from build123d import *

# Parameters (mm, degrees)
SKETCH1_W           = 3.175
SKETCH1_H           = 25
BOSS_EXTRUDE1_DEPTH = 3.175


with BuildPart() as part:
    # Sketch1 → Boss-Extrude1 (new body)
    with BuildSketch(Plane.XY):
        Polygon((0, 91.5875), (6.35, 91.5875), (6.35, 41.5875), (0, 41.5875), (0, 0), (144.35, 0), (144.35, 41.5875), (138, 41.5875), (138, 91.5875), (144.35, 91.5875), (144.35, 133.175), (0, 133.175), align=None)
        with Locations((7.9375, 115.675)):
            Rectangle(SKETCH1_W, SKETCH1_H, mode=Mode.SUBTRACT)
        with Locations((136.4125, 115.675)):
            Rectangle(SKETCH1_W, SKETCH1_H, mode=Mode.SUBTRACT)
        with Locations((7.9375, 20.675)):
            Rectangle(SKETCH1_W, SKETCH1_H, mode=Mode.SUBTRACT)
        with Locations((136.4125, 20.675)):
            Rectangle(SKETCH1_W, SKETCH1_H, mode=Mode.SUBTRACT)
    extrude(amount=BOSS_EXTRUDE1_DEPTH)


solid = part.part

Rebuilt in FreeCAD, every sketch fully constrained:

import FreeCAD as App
import Part
import Sketcher
from FreeCAD import Vector

doc = App.newDocument("Part")
body = doc.addObject("PartDesign::Body", "Body")

# Sketch on XY plane
sketch1 = body.newObject("Sketcher::SketchObject", "Sketch")
sketch1.AttachmentSupport = (doc.getObject("XY_Plane"), [""])
sketch1.MapMode = "FlatFace"
sketch1.addGeometry([
    Part.LineSegment(Vector(0, 91.6, 0), Vector(6.3, 91.6, 0)),  # 0
    Part.LineSegment(Vector(6.3, 91.6, 0), Vector(6.3, 41.6, 0)),  # 1
    Part.LineSegment(Vector(6.3, 41.6, 0), Vector(0, 41.6, 0)),  # 2
    Part.LineSegment(Vector(0, 41.6, 0), Vector(0, 0, 0)),  # 3
    Part.LineSegment(Vector(0, 0, 0), Vector(144.3, 0, 0)),  # 4
    Part.LineSegment(Vector(144.3, 0, 0), Vector(144.3, 41.6, 0)),  # 5
    Part.LineSegment(Vector(144.3, 41.6, 0), Vector(138, 41.6, 0)),  # 6
    Part.LineSegment(Vector(138, 41.6, 0), Vector(138, 91.6, 0)),  # 7
    Part.LineSegment(Vector(138, 91.6, 0), Vector(144.3, 91.6, 0)),  # 8
    Part.LineSegment(Vector(144.3, 91.6, 0), Vector(144.3, 133.2, 0)),  # 9
    Part.LineSegment(Vector(144.3, 133.2, 0), Vector(0, 133.2, 0)),  # 10
    Part.LineSegment(Vector(0, 133.2, 0), Vector(0, 91.6, 0)),  # 11
    Part.LineSegment(Vector(9.5, 8.2, 0), Vector(6.3, 8.2, 0)),  # 12
    Part.LineSegment(Vector(6.3, 8.2, 0), Vector(6.3, 33.2, 0)),  # 13
    Part.LineSegment(Vector(6.3, 33.2, 0), Vector(9.5, 33.2, 0)),  # 14
    Part.LineSegment(Vector(9.5, 33.2, 0), Vector(9.5, 8.2, 0)),  # 15
    Part.LineSegment(Vector(138, 8.2, 0), Vector(134.8, 8.2, 0)),  # 16
    Part.LineSegment(Vector(134.8, 8.2, 0), Vector(134.8, 33.2, 0)),  # 17
    Part.LineSegment(Vector(134.8, 33.2, 0), Vector(138, 33.2, 0)),  # 18
    Part.LineSegment(Vector(138, 33.2, 0), Vector(138, 8.2, 0)),  # 19
    Part.LineSegment(Vector(9.5, 103.2, 0), Vector(6.3, 103.2, 0)),  # 20
    Part.LineSegment(Vector(6.3, 103.2, 0), Vector(6.3, 128.2, 0)),  # 21
    Part.LineSegment(Vector(6.3, 128.2, 0), Vector(9.5, 128.2, 0)),  # 22
    Part.LineSegment(Vector(9.5, 128.2, 0), Vector(9.5, 103.2, 0)),  # 23
    Part.LineSegment(Vector(138, 103.2, 0), Vector(134.8, 103.2, 0)),  # 24
    Part.LineSegment(Vector(134.8, 103.2, 0), Vector(134.8, 128.2, 0)),  # 25
    Part.LineSegment(Vector(134.8, 128.2, 0), Vector(138, 128.2, 0)),  # 26
    Part.LineSegment(Vector(138, 128.2, 0), Vector(138, 103.2, 0)),  # 27
], False)
sketch1.addConstraint([
    Sketcher.Constraint("Coincident", 0, 2, 1, 1),
    Sketcher.Constraint("Coincident", 1, 2, 2, 1),
    Sketcher.Constraint("Coincident", 2, 2, 3, 1),
    Sketcher.Constraint("Coincident", 3, 2, 4, 1),
    Sketcher.Constraint("Coincident", 4, 2, 5, 1),
    Sketcher.Constraint("Coincident", 5, 2, 6, 1),
    Sketcher.Constraint("Coincident", 6, 2, 7, 1),
    Sketcher.Constraint("Coincident", 7, 2, 8, 1),
    Sketcher.Constraint("Coincident", 8, 2, 9, 1),
    Sketcher.Constraint("Coincident", 9, 2, 10, 1),
    Sketcher.Constraint("Coincident", 10, 2, 11, 1),
    Sketcher.Constraint("Coincident", 11, 2, 0, 1),
    Sketcher.Constraint("Coincident", 12, 2, 13, 1),
    Sketcher.Constraint("Coincident", 13, 2, 14, 1),
    Sketcher.Constraint("Coincident", 14, 2, 15, 1),
    Sketcher.Constraint("Coincident", 15, 2, 12, 1),
    Sketcher.Constraint("Coincident", 16, 2, 17, 1),
    Sketcher.Constraint("Coincident", 17, 2, 18, 1),
    Sketcher.Constraint("Coincident", 18, 2, 19, 1),
    Sketcher.Constraint("Coincident", 19, 2, 16, 1),
    Sketcher.Constraint("Coincident", 20, 2, 21, 1),
    Sketcher.Constraint("Coincident", 21, 2, 22, 1),
    Sketcher.Constraint("Coincident", 22, 2, 23, 1),
    Sketcher.Constraint("Coincident", 23, 2, 20, 1),
    Sketcher.Constraint("Coincident", 24, 2, 25, 1),
    Sketcher.Constraint("Coincident", 25, 2, 26, 1),
    Sketcher.Constraint("Coincident", 26, 2, 27, 1),
    Sketcher.Constraint("Coincident", 27, 2, 24, 1),
    Sketcher.Constraint("Horizontal", 0),
    Sketcher.Constraint("Vertical", 1),
    Sketcher.Constraint("Horizontal", 2),
    Sketcher.Constraint("Vertical", 3),
    Sketcher.Constraint("Horizontal", 4),
    Sketcher.Constraint("Vertical", 5),
    Sketcher.Constraint("Horizontal", 6),
    Sketcher.Constraint("Vertical", 7),
    Sketcher.Constraint("Horizontal", 8),
    Sketcher.Constraint("Vertical", 9),
    Sketcher.Constraint("Horizontal", 10),
    Sketcher.Constraint("Vertical", 11),
    Sketcher.Constraint("Horizontal", 12),
    Sketcher.Constraint("Vertical", 13),
    Sketcher.Constraint("Horizontal", 14),
    Sketcher.Constraint("Vertical", 15),
    Sketcher.Constraint("Horizontal", 16),
    Sketcher.Constraint("Vertical", 17),
    Sketcher.Constraint("Horizontal", 18),
    Sketcher.Constraint("Vertical", 19),
    Sketcher.Constraint("Horizontal", 20),
    Sketcher.Constraint("Vertical", 21),
    Sketcher.Constraint("Horizontal", 22),
    Sketcher.Constraint("Vertical", 23),
    Sketcher.Constraint("Horizontal", 24),
    Sketcher.Constraint("Vertical", 25),
    Sketcher.Constraint("Horizontal", 26),
    Sketcher.Constraint("Vertical", 27),
    Sketcher.Constraint("Coincident", 3, 2, -1, 1),
    Sketcher.Constraint("PointOnObject", 10, 2, -2),
    Sketcher.Constraint("Horizontal", 2, 2, 5, 2),
    Sketcher.Constraint("Horizontal", 0, 2, 7, 2),
    Sketcher.Constraint("Horizontal", 15, 2, 16, 2),
    Sketcher.Constraint("Horizontal", 14, 2, 17, 2),
    Sketcher.Constraint("Horizontal", 23, 2, 24, 2),
    Sketcher.Constraint("Horizontal", 22, 2, 25, 2),
    Sketcher.Constraint("Vertical", 5, 2, 8, 2),
    Sketcher.Constraint("Vertical", 1, 2, 12, 2),
    Sketcher.Constraint("Vertical", 7, 2, 18, 2),
    Sketcher.Constraint("Vertical", 13, 2, 20, 2),
    Sketcher.Constraint("Vertical", 15, 2, 22, 2),
    Sketcher.Constraint("Vertical", 17, 2, 24, 2),
    Sketcher.Constraint("Vertical", 19, 2, 26, 2),
    Sketcher.Constraint("Equal", 2, 6),
    Sketcher.Constraint("Equal", 14, 16),
    Sketcher.Constraint("Equal", 5, 9),
    Sketcher.Constraint("Equal", 19, 21),
    Sketcher.Constraint("DistanceY", 1, 2, 1, 1, 50.0),
    Sketcher.Constraint("DistanceY", 13, 1, 13, 2, 25.0),
    Sketcher.Constraint("DistanceX", -1, 1, 6, 2, 138.0),
    Sketcher.Constraint("DistanceY", 20, 2, 10, 2, 30.0),
    Sketcher.Constraint("DistanceX", 0, 1, 0, 2, 6.35),
    Sketcher.Constraint("DistanceX", 12, 2, 12, 1, 3.175),
    Sketcher.Constraint("DistanceY", 3, 2, 3, 1, 41.5875),
    Sketcher.Constraint("DistanceY", -1, 1, 12, 2, 8.175),
])
pad1 = body.newObject("PartDesign::Pad", "Pad")
pad1.Profile = sketch1
pad1.Length = 3.175

doc.recompute()
